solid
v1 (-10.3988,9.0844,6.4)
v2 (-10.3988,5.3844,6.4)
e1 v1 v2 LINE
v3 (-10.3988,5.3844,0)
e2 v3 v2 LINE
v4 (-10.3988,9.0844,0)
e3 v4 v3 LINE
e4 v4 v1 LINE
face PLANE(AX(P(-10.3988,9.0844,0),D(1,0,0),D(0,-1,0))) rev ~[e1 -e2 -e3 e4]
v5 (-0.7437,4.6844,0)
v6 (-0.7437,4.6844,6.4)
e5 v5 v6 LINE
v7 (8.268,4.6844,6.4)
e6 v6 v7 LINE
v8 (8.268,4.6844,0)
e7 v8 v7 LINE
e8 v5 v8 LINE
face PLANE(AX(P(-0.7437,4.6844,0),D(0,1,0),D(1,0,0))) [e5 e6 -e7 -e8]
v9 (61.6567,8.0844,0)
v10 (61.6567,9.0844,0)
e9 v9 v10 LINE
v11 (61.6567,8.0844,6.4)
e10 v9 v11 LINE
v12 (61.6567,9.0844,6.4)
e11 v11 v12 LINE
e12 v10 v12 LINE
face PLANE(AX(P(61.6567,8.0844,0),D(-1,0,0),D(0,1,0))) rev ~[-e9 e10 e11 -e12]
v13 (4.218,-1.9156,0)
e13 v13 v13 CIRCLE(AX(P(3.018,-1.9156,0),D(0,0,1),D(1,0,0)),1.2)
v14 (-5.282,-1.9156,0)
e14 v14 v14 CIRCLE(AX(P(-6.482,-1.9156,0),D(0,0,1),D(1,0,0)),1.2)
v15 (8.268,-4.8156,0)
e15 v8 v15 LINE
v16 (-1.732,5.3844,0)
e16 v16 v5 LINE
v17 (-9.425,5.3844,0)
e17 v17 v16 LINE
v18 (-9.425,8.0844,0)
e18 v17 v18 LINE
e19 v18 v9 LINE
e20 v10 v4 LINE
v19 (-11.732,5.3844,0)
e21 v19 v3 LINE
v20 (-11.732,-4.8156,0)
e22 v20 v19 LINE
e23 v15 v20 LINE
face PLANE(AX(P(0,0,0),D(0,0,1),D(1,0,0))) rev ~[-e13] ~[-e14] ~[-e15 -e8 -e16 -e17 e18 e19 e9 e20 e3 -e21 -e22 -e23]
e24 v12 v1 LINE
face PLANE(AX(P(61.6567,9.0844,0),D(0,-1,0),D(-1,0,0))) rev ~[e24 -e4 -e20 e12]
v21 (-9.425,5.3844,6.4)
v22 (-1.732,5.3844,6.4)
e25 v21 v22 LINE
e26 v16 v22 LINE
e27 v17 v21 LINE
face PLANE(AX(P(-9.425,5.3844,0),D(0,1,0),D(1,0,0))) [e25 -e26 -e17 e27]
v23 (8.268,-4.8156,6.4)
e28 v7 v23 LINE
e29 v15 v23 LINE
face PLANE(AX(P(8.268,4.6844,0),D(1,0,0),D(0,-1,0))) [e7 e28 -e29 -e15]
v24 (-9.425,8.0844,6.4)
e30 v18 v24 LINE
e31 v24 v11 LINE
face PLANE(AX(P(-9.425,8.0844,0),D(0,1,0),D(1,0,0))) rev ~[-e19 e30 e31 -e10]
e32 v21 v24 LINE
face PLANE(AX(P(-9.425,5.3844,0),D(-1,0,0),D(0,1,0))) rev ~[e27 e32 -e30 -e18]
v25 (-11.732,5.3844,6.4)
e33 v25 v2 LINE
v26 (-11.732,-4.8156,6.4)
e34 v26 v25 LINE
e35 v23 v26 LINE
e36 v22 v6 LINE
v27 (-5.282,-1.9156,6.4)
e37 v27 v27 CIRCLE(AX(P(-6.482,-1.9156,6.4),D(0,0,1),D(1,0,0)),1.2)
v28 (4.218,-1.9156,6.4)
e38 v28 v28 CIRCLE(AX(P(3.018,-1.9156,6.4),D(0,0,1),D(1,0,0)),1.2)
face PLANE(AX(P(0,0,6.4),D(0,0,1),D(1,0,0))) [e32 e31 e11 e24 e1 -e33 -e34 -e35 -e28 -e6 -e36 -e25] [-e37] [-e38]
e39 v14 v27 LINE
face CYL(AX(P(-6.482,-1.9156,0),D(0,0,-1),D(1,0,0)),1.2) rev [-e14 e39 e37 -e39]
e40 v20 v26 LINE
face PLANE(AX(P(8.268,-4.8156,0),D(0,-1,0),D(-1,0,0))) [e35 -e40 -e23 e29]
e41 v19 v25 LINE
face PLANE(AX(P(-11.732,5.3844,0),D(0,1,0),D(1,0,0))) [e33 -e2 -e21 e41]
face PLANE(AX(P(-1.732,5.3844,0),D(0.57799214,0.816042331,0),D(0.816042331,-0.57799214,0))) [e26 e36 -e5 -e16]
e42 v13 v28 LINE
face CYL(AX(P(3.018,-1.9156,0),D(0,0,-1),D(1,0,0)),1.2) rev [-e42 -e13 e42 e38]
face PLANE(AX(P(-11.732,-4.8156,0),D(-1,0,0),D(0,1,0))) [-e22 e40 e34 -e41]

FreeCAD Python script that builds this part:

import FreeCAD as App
import Part
import Sketcher

V = App.Vector
Q = App.Units.Quantity


def add_polygon(sketch, points):
    """Adds a closed chain of lines whose ends are joined by coincident constraints."""
    first, n = sketch.GeometryCount, len(points)
    for a, b in zip(points, points[1:] + points[:1]):
        sketch.addGeometry(Part.LineSegment(App.Vector(*a, 0), App.Vector(*b, 0)), False)
    for i in range(n):
        sketch.addConstraint(Sketcher.Constraint("Coincident", first + i, 2, first + (i + 1) % n, 1))

doc = App.newDocument("Part")
body = doc.addObject("PartDesign::Body", "Body")

sketch1 = doc.addObject("Sketcher::SketchObject", "Sketch")
body.addObject(sketch1)
sketch1.AttachmentSupport = (doc.XY_Plane, [""])
sketch1.MapMode = "FlatFace"
add_polygon(sketch1, [(8.3, -4.8), (8.3, 4.7), (-0.7, 4.7), (-1.7, 5.4), (-9.4, 5.4), (-9.4, 8.1), (61.7, 8.1), (61.7, 9.1), (-10.4, 9.1), (-10.4, 5.4), (-11.7, 5.4), (-11.7, -4.8)])
sketch1.addGeometry(Part.Circle(V(-6.5, -1.9, 0), V(0, 0, 1), 1.2), False)
sketch1.addGeometry(Part.Circle(V(3, -1.9, 0), V(0, 0, 1), 1.2), False)
sketch1.addConstraint([
    Sketcher.Constraint("Vertical", 0),
    Sketcher.Constraint("Horizontal", 1),
    Sketcher.Constraint("Horizontal", 3),
    Sketcher.Constraint("Vertical", 4),
    Sketcher.Constraint("Horizontal", 5),
    Sketcher.Constraint("Vertical", 6),
    Sketcher.Constraint("Horizontal", 7),
    Sketcher.Constraint("Vertical", 8),
    Sketcher.Constraint("Horizontal", 9),
    Sketcher.Constraint("Vertical", 10),
    Sketcher.Constraint("Horizontal", 11),
    Sketcher.Constraint("Equal", 12, 13),
    Sketcher.Constraint("Horizontal", 12, 3, 13, 3),
    Sketcher.Constraint("Horizontal", 3, 2, 8, 2),
    Sketcher.Constraint("Diameter", 12, 2.4),
    Sketcher.Constraint("DistanceX", 11, 1, 11, 2, 20.0),
    Sketcher.Constraint("DistanceY", 0, 1, 0, 2, 9.5),
    Sketcher.Constraint("DistanceX", 2, 2, 0, 2, 10.0),
    Sketcher.Constraint("DistanceY", 12, 3, 4, 2, 10.0),
    Sketcher.Constraint("DistanceY", 13, 3, 6, 2, 11.0),
    Sketcher.Constraint("DistanceX", 12, 3, 13, 3, 9.5),
    Sketcher.Constraint("DistanceY", 10, 2, 12, 3, 2.9),
    Sketcher.Constraint("DistanceX", 13, 3, 0, 2, 5.25),
    Sketcher.Constraint("DistanceY", 4, 1, 4, 2, 2.7),
    Sketcher.Constraint("Angle", 2, Q("144.6906 deg")),
    Sketcher.Constraint("DistanceX", 3, 2, 3, 1, 7.693),
    Sketcher.Constraint("DistanceX", 5, 1, 5, 2, 71.0817),
    Sketcher.Constraint("DistanceX", 7, 2, 7, 1, 72.0555),
    Sketcher.Constraint("DistanceX", 12, 3, -1, 1, 6.482),
    Sketcher.Constraint("DistanceY", 12, 3, -1, 1, 1.9156),
])
pad1 = doc.addObject("PartDesign::Pad", "Pad")
body.addObject(pad1)
pad1.Profile = sketch1
pad1.Length = 6.4

doc.recompute()
